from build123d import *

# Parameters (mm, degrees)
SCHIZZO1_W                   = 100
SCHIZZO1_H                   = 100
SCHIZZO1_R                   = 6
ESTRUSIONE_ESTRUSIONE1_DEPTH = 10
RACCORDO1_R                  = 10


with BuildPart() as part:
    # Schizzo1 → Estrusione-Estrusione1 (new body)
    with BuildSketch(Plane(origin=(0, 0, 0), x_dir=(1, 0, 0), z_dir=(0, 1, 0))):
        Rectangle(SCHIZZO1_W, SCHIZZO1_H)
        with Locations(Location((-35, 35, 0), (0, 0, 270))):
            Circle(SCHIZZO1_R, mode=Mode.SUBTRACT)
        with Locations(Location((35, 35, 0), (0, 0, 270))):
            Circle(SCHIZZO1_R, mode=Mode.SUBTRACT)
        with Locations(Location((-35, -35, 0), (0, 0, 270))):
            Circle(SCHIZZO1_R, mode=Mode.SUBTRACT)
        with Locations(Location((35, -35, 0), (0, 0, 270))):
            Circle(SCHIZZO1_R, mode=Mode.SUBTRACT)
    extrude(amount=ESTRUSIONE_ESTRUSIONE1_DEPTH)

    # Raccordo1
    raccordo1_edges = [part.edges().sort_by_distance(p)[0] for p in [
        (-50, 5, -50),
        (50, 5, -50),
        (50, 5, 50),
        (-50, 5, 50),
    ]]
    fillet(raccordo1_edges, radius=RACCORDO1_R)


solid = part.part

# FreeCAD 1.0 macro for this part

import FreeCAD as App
import Part
import Sketcher

V = App.Vector


def edges_at(feature, points):
    """Names of the edges that pass closest to the given points."""
    edges = feature.Shape.Edges
    near = lambda p: min(range(len(edges)), key=lambda i: edges[i].distToShape(Part.Vertex(*p))[0])
    return sorted({f"Edge{near(p) + 1}" for p in points})


def add_polygon(sketch, points):
    """Adds a closed chain of lines whose ends are joined by coincident constraints."""
    first, n = sketch.GeometryCount, len(points)
    for a, b in zip(points, points[1:] + points[:1]):
        sketch.addGeometry(Part.LineSegment(App.Vector(*a, 0), App.Vector(*b, 0)), False)
    for i in range(n):
        sketch.addConstraint(Sketcher.Constraint("Coincident", first + i, 2, first + (i + 1) % n, 1))

doc = App.newDocument("Part")
body = doc.addObject("PartDesign::Body", "Body")

# Sketch on XZ plane
sketch1 = body.newObject("Sketcher::SketchObject", "Sketch")
sketch1.AttachmentSupport = (doc.getObject("XZ_Plane"), [""])
sketch1.MapMode = "FlatFace"
add_polygon(sketch1, [(-50, -50), (-50, 50), (50, 50), (50, -50)])  # lines 0-3
sketch1.addGeometry(Part.Circle(V(-35, 35, 0), V(0, 0, 1), 6), False)  # 4
sketch1.addGeometry(Part.Circle(V(35, 35, 0), V(0, 0, 1), 6), False)  # 5
sketch1.addGeometry(Part.Circle(V(-35, -35, 0), V(0, 0, 1), 6), False)  # 6
sketch1.addGeometry(Part.Circle(V(35, -35, 0), V(0, 0, 1), 6), False)  # 7
sketch1.addConstraint(Sketcher.Constraint("Vertical", 0))
sketch1.addConstraint(Sketcher.Constraint("Horizontal", 1))
sketch1.addConstraint(Sketcher.Constraint("Vertical", 2))
sketch1.addConstraint(Sketcher.Constraint("Horizontal", 3))
sketch1.addConstraint(Sketcher.Constraint("Equal", 4, 5))
sketch1.addConstraint(Sketcher.Constraint("Equal", 5, 6))
sketch1.addConstraint(Sketcher.Constraint("Equal", 6, 7))
sketch1.addConstraint(Sketcher.Constraint("Symmetric", 5, 3, 6, 3, -1, 1))
sketch1.addConstraint(Sketcher.Constraint("Symmetric", 4, 3, 7, 3, -1, 1))
sketch1.addConstraint(Sketcher.Constraint("Symmetric", 0, 2, 2, 2, -1, 1))
sketch1.addConstraint(Sketcher.Constraint("Symmetric", 4, 3, 5, 3, -2))
sketch1.addConstraint(Sketcher.Constraint("Equal", 3, 0))
sketch1.addConstraint(Sketcher.Constraint("Diameter", 4, 12.0))
sketch1.addConstraint(Sketcher.Constraint("DistanceX", 1, 1, 1, 2, 100.0))
sketch1.addConstraint(Sketcher.Constraint("DistanceX", 4, 3, -1, 1, 35.0))
sketch1.addConstraint(Sketcher.Constraint("DistanceY", -1, 1, 4, 3, 35.0))
pad1 = body.newObject("PartDesign::Pad", "Pad")
pad1.Profile = sketch1
pad1.Length = 10
pad1.Reversed = True
doc.recompute()

fillet = body.newObject("PartDesign::Fillet", "Fillet")
fillet.Base = (pad1, edges_at(pad1, [
    (-50, 5, -50),
    (50, 5, -50),
    (50, 5, 50),
    (-50, 5, 50),
]))
fillet.Radius = 10

doc.recompute()
